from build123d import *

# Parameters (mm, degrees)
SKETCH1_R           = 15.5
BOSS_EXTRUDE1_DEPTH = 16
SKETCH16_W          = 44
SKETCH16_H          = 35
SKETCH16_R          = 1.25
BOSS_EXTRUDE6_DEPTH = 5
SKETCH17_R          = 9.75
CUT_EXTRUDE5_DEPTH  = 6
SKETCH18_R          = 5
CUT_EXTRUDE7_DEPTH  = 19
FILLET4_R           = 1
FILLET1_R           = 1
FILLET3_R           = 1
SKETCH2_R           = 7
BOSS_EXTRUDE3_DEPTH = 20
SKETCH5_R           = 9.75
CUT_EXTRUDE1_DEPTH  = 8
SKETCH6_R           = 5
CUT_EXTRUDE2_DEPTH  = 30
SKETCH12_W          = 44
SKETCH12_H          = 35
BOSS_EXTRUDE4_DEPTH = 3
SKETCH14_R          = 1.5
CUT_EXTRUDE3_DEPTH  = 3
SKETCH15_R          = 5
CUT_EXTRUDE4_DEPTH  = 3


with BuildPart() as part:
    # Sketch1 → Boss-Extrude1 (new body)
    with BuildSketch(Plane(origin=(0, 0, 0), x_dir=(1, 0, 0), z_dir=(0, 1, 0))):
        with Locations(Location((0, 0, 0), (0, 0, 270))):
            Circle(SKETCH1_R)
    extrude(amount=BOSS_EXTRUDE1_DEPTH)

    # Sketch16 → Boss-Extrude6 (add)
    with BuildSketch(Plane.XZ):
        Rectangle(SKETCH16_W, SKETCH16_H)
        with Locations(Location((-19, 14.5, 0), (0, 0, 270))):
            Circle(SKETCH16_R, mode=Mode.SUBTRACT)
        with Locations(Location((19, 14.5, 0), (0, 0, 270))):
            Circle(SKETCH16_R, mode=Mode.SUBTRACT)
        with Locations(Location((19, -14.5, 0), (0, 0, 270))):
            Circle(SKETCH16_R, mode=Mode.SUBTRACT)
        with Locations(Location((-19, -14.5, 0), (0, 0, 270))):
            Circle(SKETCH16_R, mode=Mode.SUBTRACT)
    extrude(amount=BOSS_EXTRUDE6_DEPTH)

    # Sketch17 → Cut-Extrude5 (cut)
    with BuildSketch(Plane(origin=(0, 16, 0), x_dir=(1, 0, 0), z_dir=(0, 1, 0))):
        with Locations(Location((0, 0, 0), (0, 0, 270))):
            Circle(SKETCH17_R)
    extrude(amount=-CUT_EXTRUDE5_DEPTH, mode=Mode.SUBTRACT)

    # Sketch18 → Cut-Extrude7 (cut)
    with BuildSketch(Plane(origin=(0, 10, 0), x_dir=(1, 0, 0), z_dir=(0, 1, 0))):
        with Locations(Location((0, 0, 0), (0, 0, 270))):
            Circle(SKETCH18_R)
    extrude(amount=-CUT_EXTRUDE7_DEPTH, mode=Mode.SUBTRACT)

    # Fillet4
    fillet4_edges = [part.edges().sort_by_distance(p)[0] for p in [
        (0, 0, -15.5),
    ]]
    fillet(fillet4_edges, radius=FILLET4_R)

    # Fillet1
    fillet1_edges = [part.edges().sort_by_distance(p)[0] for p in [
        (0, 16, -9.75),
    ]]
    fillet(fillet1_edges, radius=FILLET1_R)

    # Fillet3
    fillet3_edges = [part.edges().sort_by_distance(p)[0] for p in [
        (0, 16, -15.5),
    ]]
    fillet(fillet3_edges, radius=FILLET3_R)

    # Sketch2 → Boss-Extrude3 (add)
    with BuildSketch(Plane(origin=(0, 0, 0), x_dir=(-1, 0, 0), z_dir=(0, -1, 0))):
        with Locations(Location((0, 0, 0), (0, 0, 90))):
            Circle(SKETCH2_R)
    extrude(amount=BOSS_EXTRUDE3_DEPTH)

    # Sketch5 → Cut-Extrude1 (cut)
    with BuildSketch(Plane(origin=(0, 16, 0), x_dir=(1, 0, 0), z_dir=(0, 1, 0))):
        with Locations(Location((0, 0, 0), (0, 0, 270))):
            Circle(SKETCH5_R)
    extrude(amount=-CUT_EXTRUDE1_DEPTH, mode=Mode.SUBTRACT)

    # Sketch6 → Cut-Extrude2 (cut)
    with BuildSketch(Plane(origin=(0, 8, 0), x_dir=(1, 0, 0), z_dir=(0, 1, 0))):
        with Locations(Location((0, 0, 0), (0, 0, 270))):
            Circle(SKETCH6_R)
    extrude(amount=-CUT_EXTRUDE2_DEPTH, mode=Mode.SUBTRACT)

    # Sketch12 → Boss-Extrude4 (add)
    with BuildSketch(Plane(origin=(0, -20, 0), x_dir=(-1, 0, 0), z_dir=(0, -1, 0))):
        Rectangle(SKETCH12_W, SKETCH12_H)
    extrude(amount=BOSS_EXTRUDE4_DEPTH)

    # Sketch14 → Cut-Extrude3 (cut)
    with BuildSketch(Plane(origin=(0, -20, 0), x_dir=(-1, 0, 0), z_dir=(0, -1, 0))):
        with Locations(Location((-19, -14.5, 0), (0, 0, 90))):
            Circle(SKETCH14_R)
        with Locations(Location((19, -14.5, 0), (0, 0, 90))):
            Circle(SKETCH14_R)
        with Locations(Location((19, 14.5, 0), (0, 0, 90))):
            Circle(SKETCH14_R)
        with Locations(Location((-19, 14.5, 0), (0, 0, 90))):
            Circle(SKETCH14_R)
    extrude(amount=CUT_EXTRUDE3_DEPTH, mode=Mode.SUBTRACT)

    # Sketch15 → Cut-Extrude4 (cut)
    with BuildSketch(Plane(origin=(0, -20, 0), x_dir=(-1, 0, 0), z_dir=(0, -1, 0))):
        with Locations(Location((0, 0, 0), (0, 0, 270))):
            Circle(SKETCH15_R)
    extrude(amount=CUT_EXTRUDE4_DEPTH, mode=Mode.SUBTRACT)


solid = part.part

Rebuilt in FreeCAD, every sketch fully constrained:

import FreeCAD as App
import Part
import Sketcher
Q = App.Units.Quantity


def edges_at(feature, points):
    """Names of the edges that pass closest to the given points."""
    edges = feature.Shape.Edges
    near = lambda p: min(range(len(edges)), key=lambda i: edges[i].distToShape(Part.Vertex(*p))[0])
    return sorted({f"Edge{near(p) + 1}" for p in points})


def add_polygon(sketch, points):
    """Adds a closed chain of lines whose ends are joined by coincident constraints."""
    first, n = sketch.GeometryCount, len(points)
    for a, b in zip(points, points[1:] + points[:1]):
        sketch.addGeometry(Part.LineSegment(App.Vector(*a, 0), App.Vector(*b, 0)), False)
    for i in range(n):
        sketch.addConstraint(Sketcher.Constraint("Coincident", first + i, 2, first + (i + 1) % n, 1))

doc = App.newDocument("Part")
body = doc.addObject("PartDesign::Body", "Body")

# Sketch on XZ plane
sketch1 = doc.addObject("Sketcher::SketchObject", "Sketch")
body.addObject(sketch1)
sketch1.AttachmentSupport = (doc.XZ_Plane, [""])
sketch1.MapMode = "FlatFace"
sketch1.addGeometry(Part.Circle(App.Vector(0, 0, 0), App.Vector(0, 0, 1), 15.5), False)
sketch1.addConstraint([
    Sketcher.Constraint("Coincident", 0, 3, -1, 1),
    Sketcher.Constraint("Diameter", 0, Q("31 mm")),
])
pad1 = doc.addObject("PartDesign::Pad", "Pad")
body.addObject(pad1)
pad1.Profile = sketch1
pad1.Length = 16
pad1.Reversed = True

# Sketch on XZ plane
sketch2 = doc.addObject("Sketcher::SketchObject", "Sketch001")
body.addObject(sketch2)
sketch2.AttachmentSupport = (doc.XZ_Plane, [""])
sketch2.MapMode = "FlatFace"
add_polygon(sketch2, [(-22, 17.5), (-22, -17.5), (22, -17.5), (22, 17.5)])  # lines 0-3
sketch2.addGeometry(Part.Circle(App.Vector(-19, -14.5, 0), App.Vector(0, 0, 1), 1.25), False)  # 4
sketch2.addGeometry(Part.Circle(App.Vector(19, -14.5, 0), App.Vector(0, 0, 1), 1.25), False)  # 5
sketch2.addGeometry(Part.Circle(App.Vector(-19, 14.5, 0), App.Vector(0, 0, 1), 1.25), False)  # 6
sketch2.addGeometry(Part.Circle(App.Vector(19, 14.5, 0), App.Vector(0, 0, 1), 1.25), False)  # 7
sketch2.addConstraint([
    Sketcher.Constraint("Vertical", 0),
    Sketcher.Constraint("Horizontal", 1),
    Sketcher.Constraint("Vertical", 2),
    Sketcher.Constraint("Horizontal", 3),
    Sketcher.Constraint("Equal", 4, 5),
    Sketcher.Constraint("Equal", 5, 6),
    Sketcher.Constraint("Equal", 6, 7),
    Sketcher.Constraint("Symmetric", 5, 3, 6, 3, -1, 1),
    Sketcher.Constraint("Symmetric", 4, 3, 7, 3, -1, 1),
    Sketcher.Constraint("Symmetric", 0, 2, 2, 2, -1, 1),
    Sketcher.Constraint("Symmetric", 4, 3, 5, 3, -2),
    Sketcher.Constraint("Diameter", 4, Q("2.5 mm")),
    Sketcher.Constraint("DistanceX", 1, 1, 1, 2, Q("44 mm")),
    Sketcher.Constraint("DistanceY", 0, 2, 0, 1, Q("35 mm")),
    Sketcher.Constraint("DistanceX", 4, 3, -1, 1, Q("19 mm")),
    Sketcher.Constraint("DistanceY", 4, 3, 6, 3, Q("29 mm")),
])
pad2 = doc.addObject("PartDesign::Pad", "Pad001")
body.addObject(pad2)
pad2.Profile = sketch2
pad2.Length = 5

# Sketch on XZ plane
sketch3 = doc.addObject("Sketcher::SketchObject", "Sketch002")
body.addObject(sketch3)
sketch3.AttachmentSupport = (doc.XZ_Plane, [""])
sketch3.MapMode = "FlatFace"
sketch3.AttachmentOffset = App.Placement(App.Vector(0, 0, -16), App.Rotation())
sketch3.addGeometry(Part.Circle(App.Vector(0, 0, 0), App.Vector(0, 0, 1), 9.75), False)
sketch3.addConstraint([
    Sketcher.Constraint("Coincident", 0, 3, -1, 1),
    Sketcher.Constraint("Diameter", 0, Q("19.5 mm")),
])
pocket1 = doc.addObject("PartDesign::Pocket", "Pocket")
body.addObject(pocket1)
pocket1.Profile = sketch3
pocket1.Length = 6
pocket1.Reversed = True

# Sketch on XZ plane
sketch4 = doc.addObject("Sketcher::SketchObject", "Sketch003")
body.addObject(sketch4)
sketch4.AttachmentSupport = (doc.XZ_Plane, [""])
sketch4.MapMode = "FlatFace"
sketch4.AttachmentOffset = App.Placement(App.Vector(0, 0, -10), App.Rotation())
sketch4.addGeometry(Part.Circle(App.Vector(0, 0, 0), App.Vector(0, 0, 1), 5), False)
sketch4.addConstraint([
    Sketcher.Constraint("Coincident", 0, 3, -1, 1),
    Sketcher.Constraint("Diameter", 0, Q("10 mm")),
])
pocket2 = doc.addObject("PartDesign::Pocket", "Pocket001")
body.addObject(pocket2)
pocket2.Profile = sketch4
pocket2.Length = 19
pocket2.Reversed = True
doc.recompute()

fillet = doc.addObject("PartDesign::Fillet", "Fillet")
body.addObject(fillet)
fillet.Base = (pocket2, edges_at(pocket2, [(0, 0, -15.5)]))
fillet.Radius = 1
doc.recompute()

fillet2 = doc.addObject("PartDesign::Fillet", "Fillet001")
body.addObject(fillet2)
fillet2.Base = (fillet, edges_at(fillet, [(0, 16, -9.75)]))
fillet2.Radius = 1
doc.recompute()

fillet3 = doc.addObject("PartDesign::Fillet", "Fillet002")
body.addObject(fillet3)
fillet3.Base = (fillet2, edges_at(fillet2, [(0, 16, -15.5)]))
fillet3.Radius = 1

# Sketch on XZ plane
sketch5 = doc.addObject("Sketcher::SketchObject", "Sketch004")
body.addObject(sketch5)
sketch5.AttachmentSupport = (doc.XZ_Plane, [""])
sketch5.MapMode = "FlatFace"
sketch5.addGeometry(Part.Circle(App.Vector(0, 0, 0), App.Vector(0, 0, 1), 7), False)
sketch5.addConstraint([
    Sketcher.Constraint("Coincident", 0, 3, -1, 1),
    Sketcher.Constraint("Diameter", 0, Q("14 mm")),
])
pad3 = doc.addObject("PartDesign::Pad", "Pad002")
body.addObject(pad3)
pad3.Profile = sketch5
pad3.Length = 20

# Sketch on XZ plane
sketch6 = doc.addObject("Sketcher::SketchObject", "Sketch005")
body.addObject(sketch6)
sketch6.AttachmentSupport = (doc.XZ_Plane, [""])
sketch6.MapMode = "FlatFace"
sketch6.AttachmentOffset = App.Placement(App.Vector(0, 0, -16), App.Rotation())
sketch6.addGeometry(Part.Circle(App.Vector(0, 0, 0), App.Vector(0, 0, 1), 9.75), False)
sketch6.addConstraint([
    Sketcher.Constraint("Coincident", 0, 3, -1, 1),
    Sketcher.Constraint("Diameter", 0, Q("19.5 mm")),
])
pocket3 = doc.addObject("PartDesign::Pocket", "Pocket002")
body.addObject(pocket3)
pocket3.Profile = sketch6
pocket3.Length = 8
pocket3.Reversed = True

# Sketch on XZ plane
sketch7 = doc.addObject("Sketcher::SketchObject", "Sketch006")
body.addObject(sketch7)
sketch7.AttachmentSupport = (doc.XZ_Plane, [""])
sketch7.MapMode = "FlatFace"
sketch7.AttachmentOffset = App.Placement(App.Vector(0, 0, -8), App.Rotation())
sketch7.addGeometry(Part.Circle(App.Vector(0, 0, 0), App.Vector(0, 0, 1), 5), False)
sketch7.addConstraint([
    Sketcher.Constraint("Coincident", 0, 3, -1, 1),
    Sketcher.Constraint("Diameter", 0, Q("10 mm")),
])
pocket4 = doc.addObject("PartDesign::Pocket", "Pocket003")
body.addObject(pocket4)
pocket4.Profile = sketch7
pocket4.Length = 30
pocket4.Reversed = True

# Sketch on XZ plane
sketch8 = doc.addObject("Sketcher::SketchObject", "Sketch007")
body.addObject(sketch8)
sketch8.AttachmentSupport = (doc.XZ_Plane, [""])
sketch8.MapMode = "FlatFace"
sketch8.AttachmentOffset = App.Placement(App.Vector(0, 0, 20), App.Rotation())
add_polygon(sketch8, [(22, -17.5), (22, 17.5), (-22, 17.5), (-22, -17.5)])  # lines 0-3
sketch8.addConstraint([
    Sketcher.Constraint("Vertical", 0),
    Sketcher.Constraint("Horizontal", 1),
    Sketcher.Constraint("Vertical", 2),
    Sketcher.Constraint("Horizontal", 3),
    Sketcher.Constraint("Symmetric", 0, 2, 2, 2, -1, 1),
    Sketcher.Constraint("DistanceX", 1, 2, 1, 1, Q("44 mm")),
    Sketcher.Constraint("DistanceY", 0, 1, 0, 2, Q("35 mm")),
])
pad4 = doc.addObject("PartDesign::Pad", "Pad003")
body.addObject(pad4)
pad4.Profile = sketch8
pad4.Length = 3

# Sketch on XZ plane
sketch9 = doc.addObject("Sketcher::SketchObject", "Sketch008")
body.addObject(sketch9)
sketch9.AttachmentSupport = (doc.XZ_Plane, [""])
sketch9.MapMode = "FlatFace"
sketch9.AttachmentOffset = App.Placement(App.Vector(0, 0, 20), App.Rotation())
sketch9.addGeometry([
    Part.Circle(App.Vector(19, 14.5, 0), App.Vector(0, 0, 1), 1.5),
    Part.Circle(App.Vector(-19, 14.5, 0), App.Vector(0, 0, 1), 1.5),
    Part.Circle(App.Vector(-19, -14.5, 0), App.Vector(0, 0, 1), 1.5),
    Part.Circle(App.Vector(19, -14.5, 0), App.Vector(0, 0, 1), 1.5),
], False)
sketch9.addConstraint([
    Sketcher.Constraint("Equal", 0, 1),
    Sketcher.Constraint("Equal", 1, 2),
    Sketcher.Constraint("Equal", 2, 3),
    Sketcher.Constraint("Symmetric", 0, 3, 2, 3, -1, 1),
    Sketcher.Constraint("Symmetric", 1, 3, 3, 3, -1, 1),
    Sketcher.Constraint("Symmetric", 0, 3, 1, 3, -2),
    Sketcher.Constraint("Diameter", 0, Q("3 mm")),
    Sketcher.Constraint("DistanceX", -1, 1, 0, 3, Q("19 mm")),
    Sketcher.Constraint("DistanceY", 2, 3, 1, 3, Q("29 mm")),
])
pocket5 = doc.addObject("PartDesign::Pocket", "Pocket004")
body.addObject(pocket5)
pocket5.Profile = sketch9
pocket5.Length = 3
pocket5.Reversed = True

# Sketch on XZ plane
sketch10 = doc.addObject("Sketcher::SketchObject", "Sketch009")
body.addObject(sketch10)
sketch10.AttachmentSupport = (doc.XZ_Plane, [""])
sketch10.MapMode = "FlatFace"
sketch10.AttachmentOffset = App.Placement(App.Vector(0, 0, 20), App.Rotation())
sketch10.addGeometry(Part.Circle(App.Vector(0, 0, 0), App.Vector(0, 0, 1), 5), False)
sketch10.addConstraint([
    Sketcher.Constraint("Coincident", 0, 3, -1, 1),
    Sketcher.Constraint("Diameter", 0, Q("10 mm")),
])
pocket6 = doc.addObject("PartDesign::Pocket", "Pocket005")
body.addObject(pocket6)
pocket6.Profile = sketch10
pocket6.Length = 3
pocket6.Reversed = True

doc.recompute()
